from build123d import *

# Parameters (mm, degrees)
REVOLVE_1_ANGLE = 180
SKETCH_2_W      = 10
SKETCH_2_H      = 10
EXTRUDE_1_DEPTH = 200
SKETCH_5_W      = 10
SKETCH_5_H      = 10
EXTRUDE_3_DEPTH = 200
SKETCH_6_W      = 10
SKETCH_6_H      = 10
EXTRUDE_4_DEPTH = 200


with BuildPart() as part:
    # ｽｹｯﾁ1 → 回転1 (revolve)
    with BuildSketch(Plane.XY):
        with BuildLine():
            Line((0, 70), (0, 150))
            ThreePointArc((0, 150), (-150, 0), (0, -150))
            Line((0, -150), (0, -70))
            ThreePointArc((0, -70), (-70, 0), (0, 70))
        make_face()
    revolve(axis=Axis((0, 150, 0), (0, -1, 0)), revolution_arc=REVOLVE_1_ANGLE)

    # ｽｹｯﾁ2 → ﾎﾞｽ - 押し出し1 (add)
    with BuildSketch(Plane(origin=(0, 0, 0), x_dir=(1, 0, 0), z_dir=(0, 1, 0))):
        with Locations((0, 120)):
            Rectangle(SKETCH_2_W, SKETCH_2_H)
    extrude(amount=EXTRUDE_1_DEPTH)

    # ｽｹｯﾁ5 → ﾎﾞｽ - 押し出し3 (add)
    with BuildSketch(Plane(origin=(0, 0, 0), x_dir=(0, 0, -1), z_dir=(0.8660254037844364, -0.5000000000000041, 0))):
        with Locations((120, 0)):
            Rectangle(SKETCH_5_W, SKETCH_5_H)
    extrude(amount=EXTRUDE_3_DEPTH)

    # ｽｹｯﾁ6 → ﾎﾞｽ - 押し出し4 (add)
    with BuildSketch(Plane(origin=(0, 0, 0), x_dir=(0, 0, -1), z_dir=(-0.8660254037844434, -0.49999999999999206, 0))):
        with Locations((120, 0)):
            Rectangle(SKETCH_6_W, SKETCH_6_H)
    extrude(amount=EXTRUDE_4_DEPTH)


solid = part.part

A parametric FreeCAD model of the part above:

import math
import FreeCAD as App
import Part
import Sketcher
from FreeCAD import Vector


def add_polygon(sketch, points):
    """Adds a closed chain of lines whose ends are joined by coincident constraints."""
    first, n = sketch.GeometryCount, len(points)
    for a, b in zip(points, points[1:] + points[:1]):
        sketch.addGeometry(Part.LineSegment(App.Vector(*a, 0), App.Vector(*b, 0)), False)
    for i in range(n):
        sketch.addConstraint(Sketcher.Constraint("Coincident", first + i, 2, first + (i + 1) % n, 1))

doc = App.newDocument("Part")
body = doc.addObject("PartDesign::Body", "Body")

# Sketch on XY plane
sketch1 = doc.addObject("Sketcher::SketchObject", "Sketch")
body.addObject(sketch1)
sketch1.AttachmentSupport = (doc.XY_Plane, [""])
sketch1.MapMode = "FlatFace"
sketch1.addGeometry([
    Part.LineSegment(Vector(0, 70, 0), Vector(0, 150, 0)),
    Part.ArcOfCircle(Part.Circle(Vector(0, 0, 0), Vector(0, 0, 1), 150), math.radians(90), math.radians(270)),
    Part.LineSegment(Vector(0, -150, 0), Vector(0, -70, 0)),
    Part.ArcOfCircle(Part.Circle(Vector(0, 0, 0), Vector(0, 0, 1), 70), math.radians(90), math.radians(270)),
], False)
sketch1.addConstraint([
    Sketcher.Constraint("Coincident", 0, 2, 1, 1),
    Sketcher.Constraint("Coincident", 1, 2, 2, 1),
    Sketcher.Constraint("Coincident", 2, 2, 3, 2),
    Sketcher.Constraint("Coincident", 3, 1, 0, 1),
    Sketcher.Constraint("Vertical", 0),
    Sketcher.Constraint("Vertical", 2),
    Sketcher.Constraint("Coincident", 1, 3, -1, 1),
    Sketcher.Constraint("Coincident", 3, 3, -1, 1),
    Sketcher.Constraint("PointOnObject", 0, 2, -2),
    Sketcher.Constraint("PointOnObject", 1, 2, -2),
    Sketcher.Constraint("Radius", 1, 150.0),
    Sketcher.Constraint("Radius", 3, 70.0),
])
revolution = doc.addObject("PartDesign::Revolution", "Revolution")
body.addObject(revolution)
revolution.Profile = sketch1
revolution.ReferenceAxis = (sketch1, ["V_Axis"])
revolution.Angle = 180
revolution.Reversed = True

# Sketch on XZ plane
sketch2 = doc.addObject("Sketcher::SketchObject", "Sketch001")
body.addObject(sketch2)
sketch2.AttachmentSupport = (doc.XZ_Plane, [""])
sketch2.MapMode = "FlatFace"
add_polygon(sketch2, [(-5, -125), (-5, -115), (5, -115), (5, -125)])  # lines 0-3
sketch2.addConstraint([
    Sketcher.Constraint("Vertical", 0),
    Sketcher.Constraint("Horizontal", 1),
    Sketcher.Constraint("Vertical", 2),
    Sketcher.Constraint("Horizontal", 3),
    Sketcher.Constraint("Equal", 3, 0),
    Sketcher.Constraint("DistanceX", 1, 1, 1, 2, 10.0),
    Sketcher.Constraint("DistanceX", 0, 2, -1, 1, 5.0),
    Sketcher.Constraint("DistanceY", 0, 2, -1, 1, 115.0),
])
pad1 = doc.addObject("PartDesign::Pad", "Pad")
body.addObject(pad1)
pad1.Profile = sketch2
pad1.Length = 200
pad1.Reversed = True

# Sketch on an angled plane
sketch3 = doc.addObject("Sketcher::SketchObject", "Sketch002")
body.addObject(sketch3)
sketch3.Placement = App.Placement(Vector(0, 0, 0), App.Rotation(Vector(0, 0, -1), Vector(0.5, 0.866025404, 0), Vector(0.866025404, -0.5, 0), "ZXY"))
add_polygon(sketch3, [(115, 5), (115, -5), (125, -5), (125, 5)])  # lines 0-3
sketch3.addConstraint([
    Sketcher.Constraint("Vertical", 0),
    Sketcher.Constraint("Horizontal", 1),
    Sketcher.Constraint("Vertical", 2),
    Sketcher.Constraint("Horizontal", 3),
    Sketcher.Constraint("Equal", 3, 0),
    Sketcher.Constraint("DistanceX", 1, 1, 1, 2, 10.0),
    Sketcher.Constraint("DistanceX", -1, 1, 0, 2, 115.0),
    Sketcher.Constraint("DistanceY", 0, 2, -1, 1, 5.0),
])
pad2 = doc.addObject("PartDesign::Pad", "Pad001")
body.addObject(pad2)
pad2.Profile = sketch3
pad2.Length = 200

# Sketch on an angled plane
sketch4 = doc.addObject("Sketcher::SketchObject", "Sketch003")
body.addObject(sketch4)
sketch4.Placement = App.Placement(Vector(0, 0, 0), App.Rotation(Vector(0, 0, -1), Vector(0.5, -0.866025404, 0), Vector(-0.866025404, -0.5, 0), "ZXY"))
add_polygon(sketch4, [(115, 5), (115, -5), (125, -5), (125, 5)])  # lines 0-3
sketch4.addConstraint([
    Sketcher.Constraint("Vertical", 0),
    Sketcher.Constraint("Horizontal", 1),
    Sketcher.Constraint("Vertical", 2),
    Sketcher.Constraint("Horizontal", 3),
    Sketcher.Constraint("Equal", 3, 0),
    Sketcher.Constraint("DistanceX", 1, 1, 1, 2, 10.0),
    Sketcher.Constraint("DistanceX", -1, 1, 0, 2, 115.0),
    Sketcher.Constraint("DistanceY", 0, 2, -1, 1, 5.0),
])
pad3 = doc.addObject("PartDesign::Pad", "Pad002")
body.addObject(pad3)
pad3.Profile = sketch4
pad3.Length = 200

doc.recompute()
